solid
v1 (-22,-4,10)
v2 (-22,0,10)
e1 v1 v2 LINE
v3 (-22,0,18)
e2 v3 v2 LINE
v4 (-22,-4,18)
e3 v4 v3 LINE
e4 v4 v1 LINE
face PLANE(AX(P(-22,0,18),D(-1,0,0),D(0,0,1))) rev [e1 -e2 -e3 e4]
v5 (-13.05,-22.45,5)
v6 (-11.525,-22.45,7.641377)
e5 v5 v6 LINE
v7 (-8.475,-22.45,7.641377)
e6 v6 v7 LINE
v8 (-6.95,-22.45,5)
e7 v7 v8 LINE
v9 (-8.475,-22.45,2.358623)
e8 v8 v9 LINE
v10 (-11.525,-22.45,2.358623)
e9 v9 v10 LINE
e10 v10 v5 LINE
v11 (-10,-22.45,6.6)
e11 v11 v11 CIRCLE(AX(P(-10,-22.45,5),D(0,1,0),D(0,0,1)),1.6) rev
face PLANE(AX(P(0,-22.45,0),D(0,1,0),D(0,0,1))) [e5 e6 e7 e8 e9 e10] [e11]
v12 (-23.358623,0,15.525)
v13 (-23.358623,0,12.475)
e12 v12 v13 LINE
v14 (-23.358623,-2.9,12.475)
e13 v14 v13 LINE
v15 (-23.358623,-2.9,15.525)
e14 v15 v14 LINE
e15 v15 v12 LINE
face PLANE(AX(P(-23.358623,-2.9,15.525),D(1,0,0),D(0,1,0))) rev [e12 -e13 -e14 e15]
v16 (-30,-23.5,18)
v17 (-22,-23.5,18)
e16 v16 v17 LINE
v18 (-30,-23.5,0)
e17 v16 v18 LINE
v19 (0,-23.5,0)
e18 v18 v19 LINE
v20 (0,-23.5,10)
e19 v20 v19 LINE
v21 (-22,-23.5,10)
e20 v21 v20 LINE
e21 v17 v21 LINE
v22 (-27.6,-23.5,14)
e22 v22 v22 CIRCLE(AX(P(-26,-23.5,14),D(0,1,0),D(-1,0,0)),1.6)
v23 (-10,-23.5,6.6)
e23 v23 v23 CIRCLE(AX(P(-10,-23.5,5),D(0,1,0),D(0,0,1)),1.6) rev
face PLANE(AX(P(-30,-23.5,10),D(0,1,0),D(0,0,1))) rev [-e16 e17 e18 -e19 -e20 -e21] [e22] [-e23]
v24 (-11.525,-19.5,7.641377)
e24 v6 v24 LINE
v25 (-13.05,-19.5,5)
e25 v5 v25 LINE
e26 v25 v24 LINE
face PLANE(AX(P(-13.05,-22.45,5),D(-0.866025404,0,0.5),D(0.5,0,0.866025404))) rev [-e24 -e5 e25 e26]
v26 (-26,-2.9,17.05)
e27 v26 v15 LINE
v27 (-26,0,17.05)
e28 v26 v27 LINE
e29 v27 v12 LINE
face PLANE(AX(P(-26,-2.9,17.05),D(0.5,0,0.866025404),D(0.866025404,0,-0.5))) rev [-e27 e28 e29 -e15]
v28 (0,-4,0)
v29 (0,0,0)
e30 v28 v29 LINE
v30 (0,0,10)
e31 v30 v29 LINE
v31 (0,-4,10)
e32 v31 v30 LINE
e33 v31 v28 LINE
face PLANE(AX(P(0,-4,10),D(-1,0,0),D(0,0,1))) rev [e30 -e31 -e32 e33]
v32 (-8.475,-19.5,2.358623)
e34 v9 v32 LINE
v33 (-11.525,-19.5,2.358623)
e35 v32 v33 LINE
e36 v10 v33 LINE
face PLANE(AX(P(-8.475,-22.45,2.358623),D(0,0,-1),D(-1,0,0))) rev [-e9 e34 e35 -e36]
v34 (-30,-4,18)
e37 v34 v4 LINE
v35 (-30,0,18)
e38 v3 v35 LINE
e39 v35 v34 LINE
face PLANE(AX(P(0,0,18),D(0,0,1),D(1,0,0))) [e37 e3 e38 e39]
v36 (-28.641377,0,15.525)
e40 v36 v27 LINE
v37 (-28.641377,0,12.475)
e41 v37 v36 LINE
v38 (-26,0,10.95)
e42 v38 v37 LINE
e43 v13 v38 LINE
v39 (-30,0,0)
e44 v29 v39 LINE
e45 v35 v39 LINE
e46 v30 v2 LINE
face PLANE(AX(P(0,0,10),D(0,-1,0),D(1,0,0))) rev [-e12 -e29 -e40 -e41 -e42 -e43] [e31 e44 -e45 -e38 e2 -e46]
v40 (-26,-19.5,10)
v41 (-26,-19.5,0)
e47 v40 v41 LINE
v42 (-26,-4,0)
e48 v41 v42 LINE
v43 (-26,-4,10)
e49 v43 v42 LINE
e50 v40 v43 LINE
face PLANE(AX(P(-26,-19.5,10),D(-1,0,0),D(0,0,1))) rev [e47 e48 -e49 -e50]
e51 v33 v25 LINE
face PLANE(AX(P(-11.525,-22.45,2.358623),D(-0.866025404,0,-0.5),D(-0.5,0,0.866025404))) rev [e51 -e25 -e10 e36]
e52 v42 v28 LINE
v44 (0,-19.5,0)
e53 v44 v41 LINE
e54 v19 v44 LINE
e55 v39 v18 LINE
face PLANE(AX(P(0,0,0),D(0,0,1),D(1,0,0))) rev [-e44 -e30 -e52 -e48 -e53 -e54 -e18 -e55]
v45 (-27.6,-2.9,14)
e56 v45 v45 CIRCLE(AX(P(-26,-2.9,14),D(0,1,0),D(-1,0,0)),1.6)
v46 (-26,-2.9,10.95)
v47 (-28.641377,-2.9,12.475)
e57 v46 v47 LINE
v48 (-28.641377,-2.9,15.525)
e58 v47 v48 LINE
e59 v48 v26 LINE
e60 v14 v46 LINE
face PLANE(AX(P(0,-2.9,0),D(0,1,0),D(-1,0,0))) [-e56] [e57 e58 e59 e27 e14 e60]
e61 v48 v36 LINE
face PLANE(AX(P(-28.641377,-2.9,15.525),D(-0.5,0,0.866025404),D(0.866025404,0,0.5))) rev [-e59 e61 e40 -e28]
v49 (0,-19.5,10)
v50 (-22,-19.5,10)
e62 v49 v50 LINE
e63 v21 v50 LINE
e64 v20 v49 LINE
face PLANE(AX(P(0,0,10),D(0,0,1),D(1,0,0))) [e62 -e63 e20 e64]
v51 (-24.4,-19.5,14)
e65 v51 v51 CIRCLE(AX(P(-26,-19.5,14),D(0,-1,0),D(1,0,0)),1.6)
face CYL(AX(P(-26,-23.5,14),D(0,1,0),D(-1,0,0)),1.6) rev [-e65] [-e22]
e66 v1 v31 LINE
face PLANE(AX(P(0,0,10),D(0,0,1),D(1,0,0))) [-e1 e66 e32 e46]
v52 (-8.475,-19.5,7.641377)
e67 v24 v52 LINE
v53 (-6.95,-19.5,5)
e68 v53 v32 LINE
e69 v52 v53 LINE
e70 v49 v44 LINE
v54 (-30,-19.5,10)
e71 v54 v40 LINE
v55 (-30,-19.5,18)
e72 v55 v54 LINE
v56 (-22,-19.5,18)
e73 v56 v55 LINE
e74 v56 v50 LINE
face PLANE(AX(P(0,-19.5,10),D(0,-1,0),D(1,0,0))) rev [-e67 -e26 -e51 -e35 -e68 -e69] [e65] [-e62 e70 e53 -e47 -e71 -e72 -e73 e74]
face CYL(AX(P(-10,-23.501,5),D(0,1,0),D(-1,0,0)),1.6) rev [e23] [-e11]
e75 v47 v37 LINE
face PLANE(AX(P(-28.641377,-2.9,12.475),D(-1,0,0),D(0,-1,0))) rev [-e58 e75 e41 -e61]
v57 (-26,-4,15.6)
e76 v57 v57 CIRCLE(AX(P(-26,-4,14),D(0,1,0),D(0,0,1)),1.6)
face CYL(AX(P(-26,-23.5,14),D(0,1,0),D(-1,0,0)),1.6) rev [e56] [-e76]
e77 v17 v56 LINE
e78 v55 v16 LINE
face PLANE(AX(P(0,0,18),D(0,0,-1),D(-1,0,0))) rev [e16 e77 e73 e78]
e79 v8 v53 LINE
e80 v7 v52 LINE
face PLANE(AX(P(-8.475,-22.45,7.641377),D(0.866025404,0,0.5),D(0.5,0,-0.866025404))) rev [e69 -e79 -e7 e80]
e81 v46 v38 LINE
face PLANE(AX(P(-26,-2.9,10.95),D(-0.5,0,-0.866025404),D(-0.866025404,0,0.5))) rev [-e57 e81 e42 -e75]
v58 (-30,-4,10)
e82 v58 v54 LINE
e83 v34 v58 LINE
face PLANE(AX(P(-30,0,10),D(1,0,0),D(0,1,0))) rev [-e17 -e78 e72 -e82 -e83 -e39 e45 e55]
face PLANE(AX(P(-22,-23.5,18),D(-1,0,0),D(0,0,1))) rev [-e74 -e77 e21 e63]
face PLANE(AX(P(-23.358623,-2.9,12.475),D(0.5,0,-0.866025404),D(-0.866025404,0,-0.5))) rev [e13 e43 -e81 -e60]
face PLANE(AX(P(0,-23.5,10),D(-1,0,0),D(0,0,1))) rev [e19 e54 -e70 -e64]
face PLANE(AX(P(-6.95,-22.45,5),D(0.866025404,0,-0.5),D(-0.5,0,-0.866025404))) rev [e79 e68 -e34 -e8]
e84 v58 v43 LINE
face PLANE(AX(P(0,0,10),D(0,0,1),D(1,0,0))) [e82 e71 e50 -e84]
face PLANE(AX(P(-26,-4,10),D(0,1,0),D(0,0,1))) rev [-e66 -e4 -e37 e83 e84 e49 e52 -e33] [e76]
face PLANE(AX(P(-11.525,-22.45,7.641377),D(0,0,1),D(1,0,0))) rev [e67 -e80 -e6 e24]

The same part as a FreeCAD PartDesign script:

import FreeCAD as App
import Part
import Sketcher

V = App.Vector
Q = App.Units.Quantity


def add_polygon(sketch, points):
    """Adds a closed chain of lines whose ends are joined by coincident constraints."""
    first, n = sketch.GeometryCount, len(points)
    for a, b in zip(points, points[1:] + points[:1]):
        sketch.addGeometry(Part.LineSegment(App.Vector(*a, 0), App.Vector(*b, 0)), False)
    for i in range(n):
        sketch.addConstraint(Sketcher.Constraint("Coincident", first + i, 2, first + (i + 1) % n, 1))

doc = App.newDocument("Part")
body = doc.addObject("PartDesign::Body", "Body")

sketch1 = body.newObject("Sketcher::SketchObject", "Sketch")
sketch1.AttachmentSupport = (doc.getObject("XY_Plane"), [""])
sketch1.MapMode = "FlatFace"
add_polygon(sketch1, [(0, 0), (-30, 0), (-30, -23.5), (0, -23.5), (0, -19.5), (-26, -19.5), (-26, -4), (0, -4)])
sketch1.addConstraint([
    Sketcher.Constraint("Horizontal", 0),
    Sketcher.Constraint("Vertical", 1),
    Sketcher.Constraint("Horizontal", 2),
    Sketcher.Constraint("Vertical", 3),
    Sketcher.Constraint("Horizontal", 4),
    Sketcher.Constraint("Vertical", 5),
    Sketcher.Constraint("Horizontal", 6),
    Sketcher.Constraint("Vertical", 7),
    Sketcher.Constraint("Coincident", 7, 2, -1, 1),
    Sketcher.Constraint("PointOnObject", 2, 2, -2),
    Sketcher.Constraint("Equal", 3, 7),
    Sketcher.Constraint("DistanceX", 0, 2, 0, 1, 30.0),
    Sketcher.Constraint("DistanceX", 4, 2, 4, 1, 26.0),
    Sketcher.Constraint("DistanceY", 3, 1, 3, 2, 4.0),
    Sketcher.Constraint("DistanceY", 1, 2, 1, 1, 23.5),
])
pad1 = body.newObject("PartDesign::Pad", "Pad")
pad1.Profile = sketch1
pad1.Length = 10

sketch2 = body.newObject("Sketcher::SketchObject", "Sketch001")
sketch2.AttachmentSupport = (doc.getObject("XZ_Plane"), [""])
sketch2.MapMode = "FlatFace"
sketch2.AttachmentOffset = App.Placement(V(0, 0, 19.5), App.Rotation())
sketch2.addGeometry(Part.Circle(V(-10, 5, 0), V(0, 0, 1), 1.6), False)
sketch2.addConstraint([
    Sketcher.Constraint("Diameter", 0, 3.2),
    Sketcher.Constraint("DistanceX", 0, 3, -1, 1, 10.0),
    Sketcher.Constraint("DistanceY", -1, 1, 0, 3, 5.0),
])
pocket1 = body.newObject("PartDesign::Pocket", "Pocket")
pocket1.Profile = sketch2
pocket1.Type = "UpToFirst"
pocket1.Reversed = True

sketch3 = body.newObject("Sketcher::SketchObject", "Sketch002")
sketch3.AttachmentSupport = (doc.getObject("XZ_Plane"), [""])
sketch3.MapMode = "FlatFace"
sketch3.AttachmentOffset = App.Placement(V(0, 0, 19.5), App.Rotation())
add_polygon(sketch3, [(-8.5, 7.6), (-7, 5), (-8.5, 2.4), (-11.5, 2.4), (-13.1, 5), (-11.5, 7.6)])
sketch3.addConstraint([
    Sketcher.Constraint("Horizontal", 2),
    Sketcher.Constraint("Horizontal", 5),
    Sketcher.Constraint("Parallel", 0, 3),
    Sketcher.Constraint("Parallel", 1, 4),
    Sketcher.Constraint("Horizontal", 0, 2, 3, 2),
    Sketcher.Constraint("Vertical", 2, 2, 4, 2),
    Sketcher.Constraint("Vertical", 1, 2, 5, 2),
    Sketcher.Constraint("Angle", 0, Q("-60 deg")),
    Sketcher.Constraint("DistanceY", -1, 1, 0, 2, 5.0),
    Sketcher.Constraint("DistanceX", 2, 2, 2, 1, 3.05),
    Sketcher.Constraint("DistanceX", 3, 2, 0, 2, 6.1),
    Sketcher.Constraint("DistanceX", 0, 2, -1, 1, 6.95),
])
pocket2 = body.newObject("PartDesign::Pocket", "Pocket001")
pocket2.Profile = sketch3
pocket2.Length = 2.95
pocket2.Reversed = True

sketch4 = body.newObject("Sketcher::SketchObject", "Sketch003")
sketch4.AttachmentSupport = (doc.getObject("XY_Plane"), [""])
sketch4.MapMode = "FlatFace"
sketch4.AttachmentOffset = App.Placement(V(0, 0, 10), App.Rotation())
add_polygon(sketch4, [(-30, 0), (-30, -4), (-22, -4), (-22, 0)])
add_polygon(sketch4, [(-30, -19.5), (-30, -23.5), (-22, -23.5), (-22, -19.5)])
sketch4.addConstraint([
    Sketcher.Constraint("Vertical", 0),
    Sketcher.Constraint("Horizontal", 1),
    Sketcher.Constraint("Vertical", 2),
    Sketcher.Constraint("Horizontal", 3),
    Sketcher.Constraint("Vertical", 4),
    Sketcher.Constraint("Horizontal", 5),
    Sketcher.Constraint("Vertical", 6),
    Sketcher.Constraint("Horizontal", 7),
    Sketcher.Constraint("PointOnObject", 2, 2, -1),
    Sketcher.Constraint("Vertical", 3, 2, 4, 2),
    Sketcher.Constraint("Vertical", 2, 2, 5, 2),
    Sketcher.Constraint("Equal", 2, 4),
    Sketcher.Constraint("DistanceX", 1, 1, 1, 2, 8.0),
    Sketcher.Constraint("DistanceY", 0, 2, 0, 1, 4.0),
    Sketcher.Constraint("DistanceX", 0, 2, -1, 1, 30.0),
    Sketcher.Constraint("DistanceY", 4, 2, -1, 1, 23.5),
])
pad2 = body.newObject("PartDesign::Pad", "Pad001")
pad2.Profile = sketch4
pad2.Length = 8

sketch5 = body.newObject("Sketcher::SketchObject", "Sketch004")
sketch5.AttachmentSupport = (doc.getObject("XZ_Plane"), [""])
sketch5.MapMode = "FlatFace"
add_polygon(sketch5, [(-26, 17.1), (-23.4, 15.5), (-23.4, 12.5), (-26, 10.9), (-28.6, 12.5), (-28.6, 15.5)])
sketch5.addConstraint([
    Sketcher.Constraint("Vertical", 1),
    Sketcher.Constraint("Vertical", 4),
    Sketcher.Constraint("Parallel", 0, 3),
    Sketcher.Constraint("Parallel", 2, 5),
    Sketcher.Constraint("Horizontal", 1, 2, 3, 2),
    Sketcher.Constraint("Horizontal", 0, 2, 4, 2),
    Sketcher.Constraint("Vertical", 2, 2, 5, 2),
    Sketcher.Constraint("Angle", 0, Q("-30 deg")),
    Sketcher.Constraint("DistanceX", 2, 2, -1, 1, 26.0),
    Sketcher.Constraint("DistanceY", 1, 2, 1, 1, 3.05),
    Sketcher.Constraint("DistanceY", 2, 2, 5, 2, 6.1),
    Sketcher.Constraint("DistanceY", -1, 1, 2, 2, 10.95),
])
pocket3 = body.newObject("PartDesign::Pocket", "Pocket002")
pocket3.Profile = sketch5
pocket3.Length = 2.9
pocket3.Reversed = True

sketch6 = body.newObject("Sketcher::SketchObject", "Sketch005")
sketch6.AttachmentSupport = (doc.getObject("XZ_Plane"), [""])
sketch6.MapMode = "FlatFace"
sketch6.addGeometry(Part.Circle(V(-26, 14, 0), V(0, 0, 1), 1.6), False)
sketch6.addConstraint([
    Sketcher.Constraint("Diameter", 0, 3.2),
    Sketcher.Constraint("DistanceX", 0, 3, -1, 1, 26.0),
    Sketcher.Constraint("DistanceY", -1, 1, 0, 3, 14.0),
])
pocket4 = body.newObject("PartDesign::Pocket", "Pocket003")
pocket4.Profile = sketch6
pocket4.Type = "ThroughAll"
pocket4.Reversed = True

doc.recompute()
